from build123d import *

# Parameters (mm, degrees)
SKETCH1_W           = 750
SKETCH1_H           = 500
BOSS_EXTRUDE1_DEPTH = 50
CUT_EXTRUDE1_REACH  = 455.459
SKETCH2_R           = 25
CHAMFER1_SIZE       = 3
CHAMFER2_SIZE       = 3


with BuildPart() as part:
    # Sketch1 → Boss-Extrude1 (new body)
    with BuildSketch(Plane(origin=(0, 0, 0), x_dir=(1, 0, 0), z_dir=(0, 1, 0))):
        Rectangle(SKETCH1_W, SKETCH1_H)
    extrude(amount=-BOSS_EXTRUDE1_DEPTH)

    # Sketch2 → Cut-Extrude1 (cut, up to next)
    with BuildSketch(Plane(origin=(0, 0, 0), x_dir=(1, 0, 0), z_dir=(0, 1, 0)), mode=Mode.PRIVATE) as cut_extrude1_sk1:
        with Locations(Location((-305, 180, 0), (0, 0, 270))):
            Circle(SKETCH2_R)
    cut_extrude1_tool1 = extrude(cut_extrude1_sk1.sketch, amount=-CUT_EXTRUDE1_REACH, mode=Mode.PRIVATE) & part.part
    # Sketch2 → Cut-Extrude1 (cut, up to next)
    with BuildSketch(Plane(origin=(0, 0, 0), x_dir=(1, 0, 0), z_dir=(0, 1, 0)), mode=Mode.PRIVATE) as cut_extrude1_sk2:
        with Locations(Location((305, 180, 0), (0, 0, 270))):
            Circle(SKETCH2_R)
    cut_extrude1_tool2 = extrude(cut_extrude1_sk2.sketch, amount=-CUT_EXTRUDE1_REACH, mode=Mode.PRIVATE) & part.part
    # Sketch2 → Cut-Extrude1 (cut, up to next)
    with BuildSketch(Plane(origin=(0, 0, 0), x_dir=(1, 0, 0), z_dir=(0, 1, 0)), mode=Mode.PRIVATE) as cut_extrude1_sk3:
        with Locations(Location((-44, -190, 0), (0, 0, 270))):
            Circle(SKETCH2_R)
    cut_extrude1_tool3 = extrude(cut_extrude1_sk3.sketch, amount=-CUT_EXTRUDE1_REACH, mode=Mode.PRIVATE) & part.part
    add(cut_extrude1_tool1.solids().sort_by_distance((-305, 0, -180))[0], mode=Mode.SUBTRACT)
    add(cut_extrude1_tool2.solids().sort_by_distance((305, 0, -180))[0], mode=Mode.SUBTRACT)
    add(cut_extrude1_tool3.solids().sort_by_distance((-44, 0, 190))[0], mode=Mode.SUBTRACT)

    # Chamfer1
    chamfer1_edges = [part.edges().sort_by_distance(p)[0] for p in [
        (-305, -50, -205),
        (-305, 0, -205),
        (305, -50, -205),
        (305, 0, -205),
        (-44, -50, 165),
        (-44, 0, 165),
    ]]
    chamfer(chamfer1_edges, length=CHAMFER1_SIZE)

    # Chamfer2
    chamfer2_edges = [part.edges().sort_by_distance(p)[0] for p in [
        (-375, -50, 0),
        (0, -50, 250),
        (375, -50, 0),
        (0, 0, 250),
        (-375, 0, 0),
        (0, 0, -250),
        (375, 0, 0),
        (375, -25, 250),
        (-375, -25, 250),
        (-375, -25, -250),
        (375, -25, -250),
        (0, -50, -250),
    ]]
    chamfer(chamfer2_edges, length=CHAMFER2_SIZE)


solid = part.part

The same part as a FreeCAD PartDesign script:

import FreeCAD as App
import Part
import Sketcher
from FreeCAD import Vector


def edges_at(feature, points):
    """Names of the edges that pass closest to the given points."""
    edges = feature.Shape.Edges
    near = lambda p: min(range(len(edges)), key=lambda i: edges[i].distToShape(Part.Vertex(*p))[0])
    return sorted({f"Edge{near(p) + 1}" for p in points})


def add_polygon(sketch, points):
    """Adds a closed chain of lines whose ends are joined by coincident constraints."""
    first, n = sketch.GeometryCount, len(points)
    for a, b in zip(points, points[1:] + points[:1]):
        sketch.addGeometry(Part.LineSegment(App.Vector(*a, 0), App.Vector(*b, 0)), False)
    for i in range(n):
        sketch.addConstraint(Sketcher.Constraint("Coincident", first + i, 2, first + (i + 1) % n, 1))

doc = App.newDocument("Part")
body = doc.addObject("PartDesign::Body", "Body")

# Sketch on XZ plane
sketch1 = body.newObject("Sketcher::SketchObject", "Sketch")
sketch1.AttachmentSupport = (doc.getObject("XZ_Plane"), [""])
sketch1.MapMode = "FlatFace"
add_polygon(sketch1, [(-375, -250), (-375, 250), (375, 250), (375, -250)])  # lines 0-3
sketch1.addConstraint([
    Sketcher.Constraint("Vertical", 0),
    Sketcher.Constraint("Horizontal", 1),
    Sketcher.Constraint("Vertical", 2),
    Sketcher.Constraint("Horizontal", 3),
    Sketcher.Constraint("Symmetric", 0, 2, 2, 2, -1, 1),
    Sketcher.Constraint("DistanceX", 1, 1, 1, 2, 750.0),
    Sketcher.Constraint("DistanceY", 0, 1, 0, 2, 500.0),
])
pad1 = body.newObject("PartDesign::Pad", "Pad")
pad1.Profile = sketch1
pad1.Length = 50

# Sketch on XZ plane
sketch2 = body.newObject("Sketcher::SketchObject", "Sketch001")
sketch2.AttachmentSupport = (doc.getObject("XZ_Plane"), [""])
sketch2.MapMode = "FlatFace"
sketch2.addGeometry(Part.Circle(Vector(-305, -180, 0), Vector(0, 0, 1), 25), False)
sketch2.addConstraint([
    Sketcher.Constraint("Diameter", 0, 50.0),
    Sketcher.Constraint("DistanceX", 0, 3, -1, 1, 305.0),
    Sketcher.Constraint("DistanceY", 0, 3, -1, 1, 180.0),
])
pocket1 = body.newObject("PartDesign::Pocket", "Pocket")
pocket1.Profile = sketch2
pocket1.Type = "UpToFirst"
pocket1.Reversed = True

# Sketch on XZ plane
sketch3 = body.newObject("Sketcher::SketchObject", "Sketch002")
sketch3.AttachmentSupport = (doc.getObject("XZ_Plane"), [""])
sketch3.MapMode = "FlatFace"
sketch3.addGeometry(Part.Circle(Vector(305, -180, 0), Vector(0, 0, 1), 25), False)
sketch3.addConstraint([
    Sketcher.Constraint("Diameter", 0, 50.0),
    Sketcher.Constraint("DistanceX", -1, 1, 0, 3, 305.0),
    Sketcher.Constraint("DistanceY", 0, 3, -1, 1, 180.0),
])
pocket2 = body.newObject("PartDesign::Pocket", "Pocket001")
pocket2.Profile = sketch3
pocket2.Type = "UpToFirst"
pocket2.Reversed = True

# Sketch on XZ plane
sketch4 = body.newObject("Sketcher::SketchObject", "Sketch003")
sketch4.AttachmentSupport = (doc.getObject("XZ_Plane"), [""])
sketch4.MapMode = "FlatFace"
sketch4.addGeometry(Part.Circle(Vector(-44, 190, 0), Vector(0, 0, 1), 25), False)
sketch4.addConstraint([
    Sketcher.Constraint("Diameter", 0, 50.0),
    Sketcher.Constraint("DistanceX", 0, 3, -1, 1, 44.0),
    Sketcher.Constraint("DistanceY", -1, 1, 0, 3, 190.0),
])
pocket3 = body.newObject("PartDesign::Pocket", "Pocket002")
pocket3.Profile = sketch4
pocket3.Type = "UpToFirst"
pocket3.Reversed = True
doc.recompute()

chamfer = body.newObject("PartDesign::Chamfer", "Chamfer")
chamfer.Base = (pocket3, edges_at(pocket3, [
    (-305, -50, -205),
    (-305, 0, -205),
    (305, -50, -205),
    (305, 0, -205),
    (-44, -50, 165),
    (-44, 0, 165),
]))
chamfer.Size = 3
doc.recompute()

chamfer2 = body.newObject("PartDesign::Chamfer", "Chamfer001")
chamfer2.Base = (chamfer, edges_at(chamfer, [
    (-375, -50, 0),
    (0, -50, 250),
    (375, -50, 0),
    (0, 0, 250),
    (-375, 0, 0),
    (0, 0, -250),
    (375, 0, 0),
    (375, -25, 250),
    (-375, -25, 250),
    (-375, -25, -250),
    (375, -25, -250),
    (0, -50, -250),
]))
chamfer2.Size = 3

doc.recompute()
